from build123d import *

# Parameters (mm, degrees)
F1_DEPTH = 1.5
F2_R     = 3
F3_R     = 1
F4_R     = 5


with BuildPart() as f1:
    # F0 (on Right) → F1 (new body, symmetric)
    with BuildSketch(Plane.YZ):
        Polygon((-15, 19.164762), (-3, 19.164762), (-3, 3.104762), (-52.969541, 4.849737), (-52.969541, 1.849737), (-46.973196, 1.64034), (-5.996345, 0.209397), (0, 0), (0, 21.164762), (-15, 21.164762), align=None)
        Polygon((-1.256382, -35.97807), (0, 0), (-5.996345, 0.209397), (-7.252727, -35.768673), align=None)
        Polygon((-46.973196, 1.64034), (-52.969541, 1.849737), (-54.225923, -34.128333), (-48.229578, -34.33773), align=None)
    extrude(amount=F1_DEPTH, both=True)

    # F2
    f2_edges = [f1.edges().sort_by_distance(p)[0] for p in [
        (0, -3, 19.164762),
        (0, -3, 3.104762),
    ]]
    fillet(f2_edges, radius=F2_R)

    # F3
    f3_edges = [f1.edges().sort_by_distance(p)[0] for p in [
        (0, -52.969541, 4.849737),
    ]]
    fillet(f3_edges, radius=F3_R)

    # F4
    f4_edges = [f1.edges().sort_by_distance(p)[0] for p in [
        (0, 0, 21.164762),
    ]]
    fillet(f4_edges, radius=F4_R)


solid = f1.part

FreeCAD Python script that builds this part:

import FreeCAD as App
import Part
import Sketcher
Q = App.Units.Quantity


def edges_at(feature, points):
    """Names of the edges that pass closest to the given points."""
    edges = feature.Shape.Edges
    near = lambda p: min(range(len(edges)), key=lambda i: edges[i].distToShape(Part.Vertex(*p))[0])
    return sorted({f"Edge{near(p) + 1}" for p in points})

doc = App.newDocument("Part")
body = doc.addObject("PartDesign::Body", "Body")

sketch1 = body.newObject("Sketcher::SketchObject", "Sketch")
sketch1.AttachmentSupport = (doc.getObject("YZ_Plane"), [""])
sketch1.MapMode = "FlatFace"
sketch1.addGeometry([
    Part.LineSegment(App.Vector(-15, 19.2, 0), App.Vector(-3, 19.2, 0)),
    Part.LineSegment(App.Vector(-3, 19.2, 0), App.Vector(-3, 3.1, 0)),
    Part.LineSegment(App.Vector(-3, 3.1, 0), App.Vector(-53, 4.8, 0)),
    Part.LineSegment(App.Vector(-53, 4.8, 0), App.Vector(-53, 1.8, 0)),
    Part.LineSegment(App.Vector(-53, 1.8, 0), App.Vector(-54.2, -34.1, 0)),
    Part.LineSegment(App.Vector(-54.2, -34.1, 0), App.Vector(-48.2, -34.3, 0)),
    Part.LineSegment(App.Vector(-48.2, -34.3, 0), App.Vector(-47, 1.6, 0)),
    Part.LineSegment(App.Vector(-47, 1.6, 0), App.Vector(-6, 0.2, 0)),
    Part.LineSegment(App.Vector(-6, 0.2, 0), App.Vector(-7.3, -35.8, 0)),
    Part.LineSegment(App.Vector(-7.3, -35.8, 0), App.Vector(-1.3, -36, 0)),
    Part.LineSegment(App.Vector(-1.3, -36, 0), App.Vector(0, 0, 0)),
    Part.LineSegment(App.Vector(0, 0, 0), App.Vector(0, 21.2, 0)),
    Part.LineSegment(App.Vector(0, 21.2, 0), App.Vector(-15, 21.2, 0)),
    Part.LineSegment(App.Vector(-15, 21.2, 0), App.Vector(-15, 19.2, 0)),
], False)
sketch1.addConstraint([
    Sketcher.Constraint("Coincident", 0, 2, 1, 1),
    Sketcher.Constraint("Coincident", 1, 2, 2, 1),
    Sketcher.Constraint("Coincident", 2, 2, 3, 1),
    Sketcher.Constraint("Coincident", 3, 2, 4, 1),
    Sketcher.Constraint("Coincident", 4, 2, 5, 1),
    Sketcher.Constraint("Coincident", 5, 2, 6, 1),
    Sketcher.Constraint("Coincident", 6, 2, 7, 1),
    Sketcher.Constraint("Coincident", 7, 2, 8, 1),
    Sketcher.Constraint("Coincident", 8, 2, 9, 1),
    Sketcher.Constraint("Coincident", 9, 2, 10, 1),
    Sketcher.Constraint("Coincident", 10, 2, 11, 1),
    Sketcher.Constraint("Coincident", 11, 2, 12, 1),
    Sketcher.Constraint("Coincident", 12, 2, 13, 1),
    Sketcher.Constraint("Coincident", 13, 2, 0, 1),
    Sketcher.Constraint("Horizontal", 0),
    Sketcher.Constraint("Vertical", 1),
    Sketcher.Constraint("Vertical", 3),
    Sketcher.Constraint("Vertical", 11),
    Sketcher.Constraint("Horizontal", 12),
    Sketcher.Constraint("Vertical", 13),
    Sketcher.Constraint("Coincident", 10, 2, -1, 1),
    Sketcher.Constraint("Perpendicular", 2, 4),
    Sketcher.Constraint("Perpendicular", 4, 5),
    Sketcher.Constraint("Perpendicular", 5, 6),
    Sketcher.Constraint("Perpendicular", 6, 7),
    Sketcher.Constraint("Perpendicular", 7, 8),
    Sketcher.Constraint("Perpendicular", 8, 9),
    Sketcher.Constraint("Perpendicular", 9, 10),
    Sketcher.Constraint("Equal", 4, 6),
    Sketcher.Constraint("Equal", 6, 8),
    Sketcher.Constraint("Equal", 5, 9),
    Sketcher.Constraint("Equal", 8, 10),
    Sketcher.Constraint("DistanceX", 0, 1, 0, 2, Q("12 mm")),
    Sketcher.Constraint("DistanceX", 12, 2, 12, 1, Q("15 mm")),
    Sketcher.Constraint("DistanceY", 3, 2, 3, 1, Q("3 mm")),
    Sketcher.Constraint("DistanceY", 13, 2, 13, 1, Q("2 mm")),
    Sketcher.Constraint("Angle", 2, Q("178 deg")),
    Sketcher.Constraint("Distance", 2, Q("50 mm")),
    Sketcher.Constraint("Distance", 4, Q("36 mm")),
    Sketcher.Constraint("Distance", 5, Q("6 mm")),
    Sketcher.Constraint("DistanceY", 1, 2, 1, 1, Q("16.06 mm")),
])
pad1 = body.newObject("PartDesign::Pad", "Pad")
pad1.Profile = sketch1
pad1.Length = 3
pad1.Midplane = True
doc.recompute()

fillet = body.newObject("PartDesign::Fillet", "Fillet")
fillet.Base = (pad1, edges_at(pad1, [(0, -3, 19.165), (0, -3, 3.105)]))
fillet.Radius = 3
doc.recompute()

fillet2 = body.newObject("PartDesign::Fillet", "Fillet001")
fillet2.Base = (fillet, edges_at(fillet, [(0, -52.97, 4.85)]))
fillet2.Radius = 1
doc.recompute()

fillet3 = body.newObject("PartDesign::Fillet", "Fillet002")
fillet3.Base = (fillet2, edges_at(fillet2, [(0, 0, 21.165)]))
fillet3.Radius = 5

doc.recompute()
